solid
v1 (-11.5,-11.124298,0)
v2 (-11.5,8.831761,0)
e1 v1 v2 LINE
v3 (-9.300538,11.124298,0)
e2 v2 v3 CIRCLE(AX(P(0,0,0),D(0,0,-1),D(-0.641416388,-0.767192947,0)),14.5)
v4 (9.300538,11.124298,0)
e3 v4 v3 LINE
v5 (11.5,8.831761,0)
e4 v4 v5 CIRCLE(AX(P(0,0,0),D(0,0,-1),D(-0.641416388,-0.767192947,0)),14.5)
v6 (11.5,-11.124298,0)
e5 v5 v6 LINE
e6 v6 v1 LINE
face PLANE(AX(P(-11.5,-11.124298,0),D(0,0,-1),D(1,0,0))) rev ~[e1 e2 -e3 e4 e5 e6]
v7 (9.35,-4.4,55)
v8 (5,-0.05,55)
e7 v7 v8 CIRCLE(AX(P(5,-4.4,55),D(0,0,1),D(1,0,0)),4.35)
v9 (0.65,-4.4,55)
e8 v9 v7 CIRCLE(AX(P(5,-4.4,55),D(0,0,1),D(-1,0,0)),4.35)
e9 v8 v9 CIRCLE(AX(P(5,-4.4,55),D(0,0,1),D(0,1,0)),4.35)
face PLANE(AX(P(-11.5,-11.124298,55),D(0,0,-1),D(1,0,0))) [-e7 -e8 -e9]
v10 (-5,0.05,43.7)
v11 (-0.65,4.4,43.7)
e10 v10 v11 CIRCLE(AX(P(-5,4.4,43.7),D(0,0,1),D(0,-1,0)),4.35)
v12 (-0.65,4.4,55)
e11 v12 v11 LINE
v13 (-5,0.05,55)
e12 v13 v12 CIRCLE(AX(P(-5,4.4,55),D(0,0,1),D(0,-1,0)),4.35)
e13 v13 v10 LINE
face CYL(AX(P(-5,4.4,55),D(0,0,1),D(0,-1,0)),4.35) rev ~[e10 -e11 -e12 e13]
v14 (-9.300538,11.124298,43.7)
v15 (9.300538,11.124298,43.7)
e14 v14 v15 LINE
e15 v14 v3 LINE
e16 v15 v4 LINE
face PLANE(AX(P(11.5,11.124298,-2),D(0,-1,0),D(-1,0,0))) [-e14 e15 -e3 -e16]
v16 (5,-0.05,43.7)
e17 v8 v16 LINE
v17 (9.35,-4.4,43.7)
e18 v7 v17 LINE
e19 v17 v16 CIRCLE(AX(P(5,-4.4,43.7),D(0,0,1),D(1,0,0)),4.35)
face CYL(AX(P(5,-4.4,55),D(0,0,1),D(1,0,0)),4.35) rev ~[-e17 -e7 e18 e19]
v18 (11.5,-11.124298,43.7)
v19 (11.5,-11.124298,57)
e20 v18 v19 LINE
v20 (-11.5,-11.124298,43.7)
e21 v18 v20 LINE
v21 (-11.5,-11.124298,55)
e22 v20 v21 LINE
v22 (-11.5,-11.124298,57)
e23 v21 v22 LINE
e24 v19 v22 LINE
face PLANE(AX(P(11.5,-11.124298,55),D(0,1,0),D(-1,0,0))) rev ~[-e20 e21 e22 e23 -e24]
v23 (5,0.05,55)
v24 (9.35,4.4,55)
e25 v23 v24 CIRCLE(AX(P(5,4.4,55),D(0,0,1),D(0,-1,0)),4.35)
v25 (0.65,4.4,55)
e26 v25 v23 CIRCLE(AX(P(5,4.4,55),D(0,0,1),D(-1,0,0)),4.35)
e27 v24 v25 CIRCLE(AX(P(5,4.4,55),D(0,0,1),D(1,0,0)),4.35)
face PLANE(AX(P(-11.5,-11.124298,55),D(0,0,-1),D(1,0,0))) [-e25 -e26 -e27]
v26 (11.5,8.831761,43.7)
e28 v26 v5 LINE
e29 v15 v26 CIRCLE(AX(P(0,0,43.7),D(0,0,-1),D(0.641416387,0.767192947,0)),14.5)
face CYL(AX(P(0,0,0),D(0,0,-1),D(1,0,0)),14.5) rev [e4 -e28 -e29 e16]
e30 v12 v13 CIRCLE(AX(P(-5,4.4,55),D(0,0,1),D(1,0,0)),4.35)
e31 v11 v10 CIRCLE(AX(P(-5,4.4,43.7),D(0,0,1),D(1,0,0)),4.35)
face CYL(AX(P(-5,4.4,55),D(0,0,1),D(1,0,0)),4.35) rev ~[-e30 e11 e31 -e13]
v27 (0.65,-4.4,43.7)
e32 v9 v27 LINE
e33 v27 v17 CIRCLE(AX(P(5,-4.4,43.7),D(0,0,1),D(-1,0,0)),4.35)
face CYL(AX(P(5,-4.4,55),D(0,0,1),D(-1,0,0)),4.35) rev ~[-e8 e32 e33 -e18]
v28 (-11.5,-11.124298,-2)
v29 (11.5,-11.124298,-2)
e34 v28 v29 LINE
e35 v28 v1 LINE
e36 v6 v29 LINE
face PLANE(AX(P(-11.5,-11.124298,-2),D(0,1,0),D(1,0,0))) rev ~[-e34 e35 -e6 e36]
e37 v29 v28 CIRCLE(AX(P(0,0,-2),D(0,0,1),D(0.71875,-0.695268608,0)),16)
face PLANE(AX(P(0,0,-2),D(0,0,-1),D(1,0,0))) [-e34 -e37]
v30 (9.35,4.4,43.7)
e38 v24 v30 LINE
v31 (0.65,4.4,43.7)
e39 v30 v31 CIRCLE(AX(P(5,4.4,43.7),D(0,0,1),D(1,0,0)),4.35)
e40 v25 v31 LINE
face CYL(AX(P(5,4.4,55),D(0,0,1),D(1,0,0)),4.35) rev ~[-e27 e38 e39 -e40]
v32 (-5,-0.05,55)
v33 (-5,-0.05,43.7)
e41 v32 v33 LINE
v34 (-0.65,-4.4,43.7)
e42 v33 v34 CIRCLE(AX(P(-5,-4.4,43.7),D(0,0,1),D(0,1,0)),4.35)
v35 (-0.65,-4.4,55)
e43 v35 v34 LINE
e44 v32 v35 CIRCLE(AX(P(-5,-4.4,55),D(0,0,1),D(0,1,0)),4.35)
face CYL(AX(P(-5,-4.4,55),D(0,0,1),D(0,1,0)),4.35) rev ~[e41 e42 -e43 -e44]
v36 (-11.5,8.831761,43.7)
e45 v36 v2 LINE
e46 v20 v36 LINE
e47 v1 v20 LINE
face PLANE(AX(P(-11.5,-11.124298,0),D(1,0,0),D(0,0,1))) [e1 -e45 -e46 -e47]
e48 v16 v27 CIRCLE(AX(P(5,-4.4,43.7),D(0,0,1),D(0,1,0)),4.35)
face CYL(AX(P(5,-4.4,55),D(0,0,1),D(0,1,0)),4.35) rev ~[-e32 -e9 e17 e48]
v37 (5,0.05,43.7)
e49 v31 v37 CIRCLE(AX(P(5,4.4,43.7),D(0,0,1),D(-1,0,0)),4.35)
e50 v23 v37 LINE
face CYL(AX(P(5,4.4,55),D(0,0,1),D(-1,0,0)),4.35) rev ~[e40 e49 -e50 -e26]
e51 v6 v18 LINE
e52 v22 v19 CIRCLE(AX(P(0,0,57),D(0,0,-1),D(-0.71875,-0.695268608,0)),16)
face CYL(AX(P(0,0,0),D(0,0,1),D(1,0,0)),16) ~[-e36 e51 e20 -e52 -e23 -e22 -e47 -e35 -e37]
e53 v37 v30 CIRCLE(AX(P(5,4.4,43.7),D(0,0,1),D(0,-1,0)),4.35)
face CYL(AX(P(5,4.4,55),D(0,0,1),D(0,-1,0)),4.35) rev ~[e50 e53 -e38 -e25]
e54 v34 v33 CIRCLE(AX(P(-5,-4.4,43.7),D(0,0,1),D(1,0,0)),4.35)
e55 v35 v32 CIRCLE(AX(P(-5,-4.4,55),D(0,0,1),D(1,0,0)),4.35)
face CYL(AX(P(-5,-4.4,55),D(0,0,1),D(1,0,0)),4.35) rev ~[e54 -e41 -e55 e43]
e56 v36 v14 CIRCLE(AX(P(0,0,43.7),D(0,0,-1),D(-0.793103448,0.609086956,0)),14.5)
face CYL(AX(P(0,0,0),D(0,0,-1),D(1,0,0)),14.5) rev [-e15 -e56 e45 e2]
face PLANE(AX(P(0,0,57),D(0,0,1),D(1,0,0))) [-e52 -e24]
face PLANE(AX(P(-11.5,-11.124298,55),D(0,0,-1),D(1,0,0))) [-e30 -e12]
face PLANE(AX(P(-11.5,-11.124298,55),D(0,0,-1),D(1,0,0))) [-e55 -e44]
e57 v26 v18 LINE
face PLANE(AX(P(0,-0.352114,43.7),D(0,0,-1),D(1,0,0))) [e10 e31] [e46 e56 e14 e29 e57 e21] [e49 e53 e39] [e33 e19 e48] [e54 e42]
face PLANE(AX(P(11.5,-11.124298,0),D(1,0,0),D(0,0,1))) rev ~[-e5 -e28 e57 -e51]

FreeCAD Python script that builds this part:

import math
import FreeCAD as App
import Part
import Sketcher
from FreeCAD import Vector

doc = App.newDocument("Part")
params = doc.addObject("Spreadsheet::Sheet", "Params")
for row, (alias, value) in enumerate([
    ("sketch1_diameter", "32 mm"),
    ("sketch1_diameter2", "29 mm"),
    ("pad1_length", "55 mm"),
    ("sketch2_diameter", "32 mm"),
    ("pad2_length", "2 mm"),
    ("sketch3_diameter", "32 mm"),
    ("pad3_length", "2 mm"),
    ("sketch4_radius", "16 mm"),
    ("sketch4_width", "23 mm"),
    ("sketch5_radius", "16 mm"),
    ("sketch5_width", "23 mm"),
    ("pad4_length", "58 mm"),
    ("sketch6_width", "23 mm"),
    ("sketch6_height", "55 mm"),
    ("pocket2_length", "3 mm"),
    ("sketch7_radius", "14.5 mm"),
    ("sketch7_width", "23 mm"),
    ("sketch7_radius2", "4.35 mm"),
    ("pad5_length", "11.3 mm"),
], start=1):
    params.set(f"A{row}", alias)
    params.set(f"B{row}", "=" + value)
    params.setAlias(f"B{row}", alias)

body = doc.addObject("PartDesign::Body", "Body")

sketch1 = body.newObject("Sketcher::SketchObject", "Sketch")
sketch1.AttachmentSupport = (doc.getObject("XY_Plane"), [""])
sketch1.MapMode = "FlatFace"
sketch1.addGeometry([
    Part.Circle(Vector(0, 0, 0), Vector(0, 0, 1), 16),
    Part.Circle(Vector(0, 0, 0), Vector(0, 0, 1), 14),
], False)
sketch1.addConstraint([
    Sketcher.Constraint("Coincident", 0, 3, -1, 1),
    Sketcher.Constraint("Coincident", 1, 3, -1, 1),
    Sketcher.Constraint("Diameter", 0, 32.0),
    Sketcher.Constraint("Diameter", 1, 29.0),
])
sketch1.setExpression("Constraints[2]", "Params.sketch1_diameter")
sketch1.setExpression("Constraints[3]", "Params.sketch1_diameter2")
pad1 = body.newObject("PartDesign::Pad", "Pad")
pad1.Profile = sketch1
pad1.setExpression("Length", "Params.pad1_length")

sketch2 = body.newObject("Sketcher::SketchObject", "Sketch001")
sketch2.AttachmentSupport = (doc.getObject("XY_Plane"), [""])
sketch2.MapMode = "FlatFace"
sketch2.AttachmentOffset = App.Placement(Vector(0, 0, 55), App.Rotation())
sketch2.addGeometry(Part.Circle(Vector(0, 0, 0), Vector(0, 0, 1), 16), False)
sketch2.addConstraint([
    Sketcher.Constraint("Coincident", 0, 3, -1, 1),
    Sketcher.Constraint("Diameter", 0, 32.0),
])
sketch2.setExpression("Constraints[1]", "Params.sketch2_diameter")
pad2 = body.newObject("PartDesign::Pad", "Pad001")
pad2.Profile = sketch2
pad2.setExpression("Length", "Params.pad2_length")

sketch3 = body.newObject("Sketcher::SketchObject", "Sketch002")
sketch3.AttachmentSupport = (doc.getObject("XY_Plane"), [""])
sketch3.MapMode = "FlatFace"
sketch3.addGeometry(Part.Circle(Vector(0, 0, 0), Vector(0, 0, 1), 16), False)
sketch3.addConstraint([
    Sketcher.Constraint("Coincident", 0, 3, -1, 1),
    Sketcher.Constraint("Diameter", 0, 32.0),
])
sketch3.setExpression("Constraints[1]", "Params.sketch3_diameter")
pad3 = body.newObject("PartDesign::Pad", "Pad002")
pad3.Profile = sketch3
pad3.setExpression("Length", "Params.pad3_length")
pad3.Reversed = True

sketch4 = body.newObject("Sketcher::SketchObject", "Sketch003")
sketch4.AttachmentSupport = (doc.getObject("XY_Plane"), [""])
sketch4.MapMode = "FlatFace"
sketch4.AttachmentOffset = App.Placement(Vector(0, 0, -2), App.Rotation())
sketch4.addGeometry([
    Part.LineSegment(Vector(-12, -11, 0), Vector(12, -11, 0)),
    Part.ArcOfCircle(Part.Circle(Vector(0, 0, 0), Vector(0, 0, 1), 16), math.radians(-136), math.radians(-44)),
], False)
sketch4.addConstraint([
    Sketcher.Constraint("Coincident", 0, 1, 1, 1),
    Sketcher.Constraint("Coincident", 1, 2, 0, 2),
    Sketcher.Constraint("Horizontal", 0),
    Sketcher.Constraint("Coincident", 1, 3, -1, 1),
    Sketcher.Constraint("Radius", 1, 16.0),
    Sketcher.Constraint("DistanceX", 0, 1, 0, 2, 23.0),
])
sketch4.setExpression("Constraints[4]", "Params.sketch4_radius")
sketch4.setExpression("Constraints[5]", "Params.sketch4_width")
pocket1 = body.newObject("PartDesign::Pocket", "Pocket")
pocket1.Profile = sketch4
pocket1.Type = "ThroughAll"
pocket1.Reversed = True

sketch5 = body.newObject("Sketcher::SketchObject", "Sketch004")
sketch5.AttachmentSupport = (doc.getObject("XY_Plane"), [""])
sketch5.MapMode = "FlatFace"
sketch5.AttachmentOffset = App.Placement(Vector(0, 0, -2), App.Rotation())
sketch5.addGeometry([
    Part.LineSegment(Vector(-12, 11, 0), Vector(-12, -11, 0)),
    Part.ArcOfCircle(Part.Circle(Vector(0, 0, 0), Vector(0, 0, 1), 16), math.radians(136), math.radians(224)),
    Part.ArcOfCircle(Part.Circle(Vector(0, 0, 0), Vector(0, 0, 1), 16), math.radians(44), math.radians(136)),
    Part.LineSegment(Vector(12, 11, 0), Vector(-12, 11, 0)),
    Part.ArcOfCircle(Part.Circle(Vector(0, 0, 0), Vector(0, 0, 1), 16), math.radians(-44), math.radians(44)),
    Part.LineSegment(Vector(12, -11, 0), Vector(12, 11, 0)),
], False)
sketch5.addConstraint([
    Sketcher.Constraint("Coincident", 0, 1, 1, 1),
    Sketcher.Constraint("Coincident", 1, 2, 0, 2),
    Sketcher.Constraint("Coincident", 2, 1, 3, 1),
    Sketcher.Constraint("Coincident", 3, 2, 2, 2),
    Sketcher.Constraint("Coincident", 4, 1, 5, 1),
    Sketcher.Constraint("Coincident", 5, 2, 4, 2),
    Sketcher.Constraint("Vertical", 0),
    Sketcher.Constraint("Horizontal", 3),
    Sketcher.Constraint("Vertical", 5),
    Sketcher.Constraint("Coincident", 1, 3, -1, 1),
    Sketcher.Constraint("Coincident", 2, 3, -1, 1),
    Sketcher.Constraint("Coincident", 4, 3, -1, 1),
    Sketcher.Constraint("Coincident", 3, 2, 0, 1),
    Sketcher.Constraint("Coincident", 5, 2, 2, 1),
    Sketcher.Constraint("Radius", 1, 16.0),
    Sketcher.Constraint("DistanceX", 3, 2, 3, 1, 23.0),
])
sketch5.setExpression("Constraints[14]", "Params.sketch5_radius")
sketch5.setExpression("Constraints[15]", "Params.sketch5_width")
pad4 = body.newObject("PartDesign::Pad", "Pad003")
pad4.Profile = sketch5
pad4.setExpression("Length", "Params.pad4_length")

sketch6 = body.newObject("Sketcher::SketchObject", "Sketch005")
sketch6.AttachmentSupport = (doc.getObject("XZ_Plane"), [""])
sketch6.MapMode = "FlatFace"
sketch6.AttachmentOffset = App.Placement(Vector(0, 0, 11.124298), App.Rotation())
sketch6.addGeometry([
    Part.LineSegment(Vector(-12, 55, 0), Vector(-12, 0, 0)),
    Part.LineSegment(Vector(-12, 0, 0), Vector(12, 0, 0)),
    Part.LineSegment(Vector(12, 0, 0), Vector(12, 55, 0)),
    Part.LineSegment(Vector(12, 55, 0), Vector(-12, 55, 0)),
], False)
sketch6.addConstraint([
    Sketcher.Constraint("Coincident", 0, 2, 1, 1),
    Sketcher.Constraint("Coincident", 1, 2, 2, 1),
    Sketcher.Constraint("Coincident", 2, 2, 3, 1),
    Sketcher.Constraint("Coincident", 3, 2, 0, 1),
    Sketcher.Constraint("Vertical", 0),
    Sketcher.Constraint("Horizontal", 1),
    Sketcher.Constraint("Vertical", 2),
    Sketcher.Constraint("Horizontal", 3),
    Sketcher.Constraint("Symmetric", 0, 2, 1, 2, -1, 1),
    Sketcher.Constraint("DistanceX", 1, 1, 1, 2, 23.0),
    Sketcher.Constraint("DistanceY", 0, 2, 0, 1, 55.0),
])
sketch6.setExpression("Constraints[9]", "Params.sketch6_width")
sketch6.setExpression("Constraints[10]", "Params.sketch6_height")
pocket2 = body.newObject("PartDesign::Pocket", "Pocket001")
pocket2.Profile = sketch6
pocket2.setExpression("Length", "Params.pocket2_length")

sketch7 = body.newObject("Sketcher::SketchObject", "Sketch006")
sketch7.AttachmentSupport = (doc.getObject("XY_Plane"), [""])
sketch7.MapMode = "FlatFace"
sketch7.AttachmentOffset = App.Placement(Vector(0, 0, 55), App.Rotation())
sketch7.addGeometry([
    Part.LineSegment(Vector(11.5, 8.8, 0), Vector(11.5, -11.1, 0)),
    Part.LineSegment(Vector(11.5, -11.1, 0), Vector(-11.5, -11.1, 0)),
    Part.LineSegment(Vector(-11.5, -11.1, 0), Vector(-11.5, 8.8, 0)),
    Part.ArcOfCircle(Part.Circle(Vector(0, 0, 0), Vector(0, 0, 1), 14.5), math.radians(129.9), math.radians(142.48)),
    Part.LineSegment(Vector(-9.3, 11.1, 0), Vector(9.3, 11.1, 0)),
    Part.ArcOfCircle(Part.Circle(Vector(0, 0, 0), Vector(0, 0, 1), 14.5), math.radians(37.52), math.radians(50.1)),
    Part.ArcOfCircle(Part.Circle(Vector(5, 4.4, 0), Vector(0, 0, 1), 4.3), math.radians(0), math.radians(180)),
    Part.ArcOfCircle(Part.Circle(Vector(5, 4.4, 0), Vector(0, 0, 1), 4.3), math.radians(180), math.radians(270)),
    Part.ArcOfCircle(Part.Circle(Vector(5, 4.4, 0), Vector(0, 0, 1), 4.3), math.radians(-90), math.radians(0)),
    Part.ArcOfCircle(Part.Circle(Vector(5, -4.4, 0), Vector(0, 0, 1), 4.3), math.radians(0), math.radians(90)),
    Part.ArcOfCircle(Part.Circle(Vector(5, -4.4, 0), Vector(0, 0, 1), 4.3), math.radians(90), math.radians(180)),
    Part.ArcOfCircle(Part.Circle(Vector(5, -4.4, 0), Vector(0, 0, 1), 4.3), math.radians(180), math.radians(360)),
    Part.ArcOfCircle(Part.Circle(Vector(-5, -4.4, 0), Vector(0, 0, 1), 4.3), math.radians(90), math.radians(360)),
    Part.ArcOfCircle(Part.Circle(Vector(-5, -4.4, 0), Vector(0, 0, 1), 4.3), math.radians(0), math.radians(90)),
    Part.ArcOfCircle(Part.Circle(Vector(-5, 4.4, 0), Vector(0, 0, 1), 4.3), math.radians(0), math.radians(270)),
    Part.ArcOfCircle(Part.Circle(Vector(-5, 4.4, 0), Vector(0, 0, 1), 4.3), math.radians(-90), math.radians(0)),
], False)
sketch7.addConstraint([
    Sketcher.Constraint("Coincident", 0, 2, 1, 1),
    Sketcher.Constraint("Coincident", 1, 2, 2, 1),
    Sketcher.Constraint("Coincident", 2, 2, 3, 2),
    Sketcher.Constraint("Coincident", 3, 1, 4, 1),
    Sketcher.Constraint("Coincident", 4, 2, 5, 2),
    Sketcher.Constraint("Coincident", 5, 1, 0, 1),
    Sketcher.Constraint("Tangent", 6, 2, 7, 1),
    Sketcher.Constraint("Tangent", 7, 2, 8, 1),
    Sketcher.Constraint("Tangent", 8, 2, 6, 1),
    Sketcher.Constraint("Tangent", 9, 2, 10, 1),
    Sketcher.Constraint("Tangent", 10, 2, 11, 1),
    Sketcher.Constraint("Tangent", 11, 2, 9, 1),
    Sketcher.Constraint("Tangent", 12, 1, 13, 2),
    Sketcher.Constraint("Coincident", 13, 1, 12, 2),
    Sketcher.Constraint("Tangent", 14, 1, 15, 2),
    Sketcher.Constraint("Coincident", 15, 1, 14, 2),
    Sketcher.Constraint("Vertical", 0),
    Sketcher.Constraint("Horizontal", 1),
    Sketcher.Constraint("Vertical", 2),
    Sketcher.Constraint("Horizontal", 4),
    Sketcher.Constraint("Coincident", 3, 3, -1, 1),
    Sketcher.Constraint("Coincident", 5, 3, -1, 1),
    Sketcher.Constraint("Equal", 3, 5),
    Sketcher.Constraint("Equal", 8, 9),
    Sketcher.Constraint("Equal", 11, 12),
    Sketcher.Constraint("Equal", 13, 14),
    Sketcher.Constraint("Symmetric", 6, 3, 12, 3, -1, 1),
    Sketcher.Constraint("Symmetric", 9, 3, 14, 3, -1, 1),
    Sketcher.Constraint("Symmetric", 9, 3, 12, 3, -2),
    Sketcher.Constraint("Horizontal", 2, 2, 5, 1),
    Sketcher.Constraint("Horizontal", 15, 3, 6, 2),
    Sketcher.Constraint("Horizontal", 6, 2, 8, 2),
    Sketcher.Constraint("Horizontal", 13, 3, 10, 2),
    Sketcher.Constraint("Horizontal", 10, 2, 11, 2),
    Sketcher.Constraint("Horizontal", 11, 2, 13, 1),
    Sketcher.Constraint("Horizontal", 8, 2, 14, 1),
    Sketcher.Constraint("Vertical", 11, 3, 7, 2),
    Sketcher.Constraint("Vertical", 7, 2, 9, 2),
    Sketcher.Constraint("Vertical", 15, 3, 12, 1),
    Sketcher.Constraint("Vertical", 12, 1, 15, 1),
    Sketcher.Constraint("Radius", 3, 14.5),
    Sketcher.Constraint("DistanceX", 1, 2, 1, 1, 23.0),
    Sketcher.Constraint("Radius", 6, 4.35),
    Sketcher.Constraint("DistanceX", -1, 1, 6, 3, 5.0),
    Sketcher.Constraint("DistanceY", -1, 1, 6, 3, 4.4),
    Sketcher.Constraint("DistanceY", 0, 2, 0, 1, 19.956059),
    Sketcher.Constraint("DistanceX", 4, 1, 4, 2, 18.601075),
])
sketch7.setExpression("Constraints[40]", "Params.sketch7_radius")
sketch7.setExpression("Constraints[41]", "Params.sketch7_width")
sketch7.setExpression("Constraints[42]", "Params.sketch7_radius2")
pad5 = body.newObject("PartDesign::Pad", "Pad004")
pad5.Profile = sketch7
pad5.setExpression("Length", "Params.pad5_length")
pad5.Reversed = True

doc.recompute()
